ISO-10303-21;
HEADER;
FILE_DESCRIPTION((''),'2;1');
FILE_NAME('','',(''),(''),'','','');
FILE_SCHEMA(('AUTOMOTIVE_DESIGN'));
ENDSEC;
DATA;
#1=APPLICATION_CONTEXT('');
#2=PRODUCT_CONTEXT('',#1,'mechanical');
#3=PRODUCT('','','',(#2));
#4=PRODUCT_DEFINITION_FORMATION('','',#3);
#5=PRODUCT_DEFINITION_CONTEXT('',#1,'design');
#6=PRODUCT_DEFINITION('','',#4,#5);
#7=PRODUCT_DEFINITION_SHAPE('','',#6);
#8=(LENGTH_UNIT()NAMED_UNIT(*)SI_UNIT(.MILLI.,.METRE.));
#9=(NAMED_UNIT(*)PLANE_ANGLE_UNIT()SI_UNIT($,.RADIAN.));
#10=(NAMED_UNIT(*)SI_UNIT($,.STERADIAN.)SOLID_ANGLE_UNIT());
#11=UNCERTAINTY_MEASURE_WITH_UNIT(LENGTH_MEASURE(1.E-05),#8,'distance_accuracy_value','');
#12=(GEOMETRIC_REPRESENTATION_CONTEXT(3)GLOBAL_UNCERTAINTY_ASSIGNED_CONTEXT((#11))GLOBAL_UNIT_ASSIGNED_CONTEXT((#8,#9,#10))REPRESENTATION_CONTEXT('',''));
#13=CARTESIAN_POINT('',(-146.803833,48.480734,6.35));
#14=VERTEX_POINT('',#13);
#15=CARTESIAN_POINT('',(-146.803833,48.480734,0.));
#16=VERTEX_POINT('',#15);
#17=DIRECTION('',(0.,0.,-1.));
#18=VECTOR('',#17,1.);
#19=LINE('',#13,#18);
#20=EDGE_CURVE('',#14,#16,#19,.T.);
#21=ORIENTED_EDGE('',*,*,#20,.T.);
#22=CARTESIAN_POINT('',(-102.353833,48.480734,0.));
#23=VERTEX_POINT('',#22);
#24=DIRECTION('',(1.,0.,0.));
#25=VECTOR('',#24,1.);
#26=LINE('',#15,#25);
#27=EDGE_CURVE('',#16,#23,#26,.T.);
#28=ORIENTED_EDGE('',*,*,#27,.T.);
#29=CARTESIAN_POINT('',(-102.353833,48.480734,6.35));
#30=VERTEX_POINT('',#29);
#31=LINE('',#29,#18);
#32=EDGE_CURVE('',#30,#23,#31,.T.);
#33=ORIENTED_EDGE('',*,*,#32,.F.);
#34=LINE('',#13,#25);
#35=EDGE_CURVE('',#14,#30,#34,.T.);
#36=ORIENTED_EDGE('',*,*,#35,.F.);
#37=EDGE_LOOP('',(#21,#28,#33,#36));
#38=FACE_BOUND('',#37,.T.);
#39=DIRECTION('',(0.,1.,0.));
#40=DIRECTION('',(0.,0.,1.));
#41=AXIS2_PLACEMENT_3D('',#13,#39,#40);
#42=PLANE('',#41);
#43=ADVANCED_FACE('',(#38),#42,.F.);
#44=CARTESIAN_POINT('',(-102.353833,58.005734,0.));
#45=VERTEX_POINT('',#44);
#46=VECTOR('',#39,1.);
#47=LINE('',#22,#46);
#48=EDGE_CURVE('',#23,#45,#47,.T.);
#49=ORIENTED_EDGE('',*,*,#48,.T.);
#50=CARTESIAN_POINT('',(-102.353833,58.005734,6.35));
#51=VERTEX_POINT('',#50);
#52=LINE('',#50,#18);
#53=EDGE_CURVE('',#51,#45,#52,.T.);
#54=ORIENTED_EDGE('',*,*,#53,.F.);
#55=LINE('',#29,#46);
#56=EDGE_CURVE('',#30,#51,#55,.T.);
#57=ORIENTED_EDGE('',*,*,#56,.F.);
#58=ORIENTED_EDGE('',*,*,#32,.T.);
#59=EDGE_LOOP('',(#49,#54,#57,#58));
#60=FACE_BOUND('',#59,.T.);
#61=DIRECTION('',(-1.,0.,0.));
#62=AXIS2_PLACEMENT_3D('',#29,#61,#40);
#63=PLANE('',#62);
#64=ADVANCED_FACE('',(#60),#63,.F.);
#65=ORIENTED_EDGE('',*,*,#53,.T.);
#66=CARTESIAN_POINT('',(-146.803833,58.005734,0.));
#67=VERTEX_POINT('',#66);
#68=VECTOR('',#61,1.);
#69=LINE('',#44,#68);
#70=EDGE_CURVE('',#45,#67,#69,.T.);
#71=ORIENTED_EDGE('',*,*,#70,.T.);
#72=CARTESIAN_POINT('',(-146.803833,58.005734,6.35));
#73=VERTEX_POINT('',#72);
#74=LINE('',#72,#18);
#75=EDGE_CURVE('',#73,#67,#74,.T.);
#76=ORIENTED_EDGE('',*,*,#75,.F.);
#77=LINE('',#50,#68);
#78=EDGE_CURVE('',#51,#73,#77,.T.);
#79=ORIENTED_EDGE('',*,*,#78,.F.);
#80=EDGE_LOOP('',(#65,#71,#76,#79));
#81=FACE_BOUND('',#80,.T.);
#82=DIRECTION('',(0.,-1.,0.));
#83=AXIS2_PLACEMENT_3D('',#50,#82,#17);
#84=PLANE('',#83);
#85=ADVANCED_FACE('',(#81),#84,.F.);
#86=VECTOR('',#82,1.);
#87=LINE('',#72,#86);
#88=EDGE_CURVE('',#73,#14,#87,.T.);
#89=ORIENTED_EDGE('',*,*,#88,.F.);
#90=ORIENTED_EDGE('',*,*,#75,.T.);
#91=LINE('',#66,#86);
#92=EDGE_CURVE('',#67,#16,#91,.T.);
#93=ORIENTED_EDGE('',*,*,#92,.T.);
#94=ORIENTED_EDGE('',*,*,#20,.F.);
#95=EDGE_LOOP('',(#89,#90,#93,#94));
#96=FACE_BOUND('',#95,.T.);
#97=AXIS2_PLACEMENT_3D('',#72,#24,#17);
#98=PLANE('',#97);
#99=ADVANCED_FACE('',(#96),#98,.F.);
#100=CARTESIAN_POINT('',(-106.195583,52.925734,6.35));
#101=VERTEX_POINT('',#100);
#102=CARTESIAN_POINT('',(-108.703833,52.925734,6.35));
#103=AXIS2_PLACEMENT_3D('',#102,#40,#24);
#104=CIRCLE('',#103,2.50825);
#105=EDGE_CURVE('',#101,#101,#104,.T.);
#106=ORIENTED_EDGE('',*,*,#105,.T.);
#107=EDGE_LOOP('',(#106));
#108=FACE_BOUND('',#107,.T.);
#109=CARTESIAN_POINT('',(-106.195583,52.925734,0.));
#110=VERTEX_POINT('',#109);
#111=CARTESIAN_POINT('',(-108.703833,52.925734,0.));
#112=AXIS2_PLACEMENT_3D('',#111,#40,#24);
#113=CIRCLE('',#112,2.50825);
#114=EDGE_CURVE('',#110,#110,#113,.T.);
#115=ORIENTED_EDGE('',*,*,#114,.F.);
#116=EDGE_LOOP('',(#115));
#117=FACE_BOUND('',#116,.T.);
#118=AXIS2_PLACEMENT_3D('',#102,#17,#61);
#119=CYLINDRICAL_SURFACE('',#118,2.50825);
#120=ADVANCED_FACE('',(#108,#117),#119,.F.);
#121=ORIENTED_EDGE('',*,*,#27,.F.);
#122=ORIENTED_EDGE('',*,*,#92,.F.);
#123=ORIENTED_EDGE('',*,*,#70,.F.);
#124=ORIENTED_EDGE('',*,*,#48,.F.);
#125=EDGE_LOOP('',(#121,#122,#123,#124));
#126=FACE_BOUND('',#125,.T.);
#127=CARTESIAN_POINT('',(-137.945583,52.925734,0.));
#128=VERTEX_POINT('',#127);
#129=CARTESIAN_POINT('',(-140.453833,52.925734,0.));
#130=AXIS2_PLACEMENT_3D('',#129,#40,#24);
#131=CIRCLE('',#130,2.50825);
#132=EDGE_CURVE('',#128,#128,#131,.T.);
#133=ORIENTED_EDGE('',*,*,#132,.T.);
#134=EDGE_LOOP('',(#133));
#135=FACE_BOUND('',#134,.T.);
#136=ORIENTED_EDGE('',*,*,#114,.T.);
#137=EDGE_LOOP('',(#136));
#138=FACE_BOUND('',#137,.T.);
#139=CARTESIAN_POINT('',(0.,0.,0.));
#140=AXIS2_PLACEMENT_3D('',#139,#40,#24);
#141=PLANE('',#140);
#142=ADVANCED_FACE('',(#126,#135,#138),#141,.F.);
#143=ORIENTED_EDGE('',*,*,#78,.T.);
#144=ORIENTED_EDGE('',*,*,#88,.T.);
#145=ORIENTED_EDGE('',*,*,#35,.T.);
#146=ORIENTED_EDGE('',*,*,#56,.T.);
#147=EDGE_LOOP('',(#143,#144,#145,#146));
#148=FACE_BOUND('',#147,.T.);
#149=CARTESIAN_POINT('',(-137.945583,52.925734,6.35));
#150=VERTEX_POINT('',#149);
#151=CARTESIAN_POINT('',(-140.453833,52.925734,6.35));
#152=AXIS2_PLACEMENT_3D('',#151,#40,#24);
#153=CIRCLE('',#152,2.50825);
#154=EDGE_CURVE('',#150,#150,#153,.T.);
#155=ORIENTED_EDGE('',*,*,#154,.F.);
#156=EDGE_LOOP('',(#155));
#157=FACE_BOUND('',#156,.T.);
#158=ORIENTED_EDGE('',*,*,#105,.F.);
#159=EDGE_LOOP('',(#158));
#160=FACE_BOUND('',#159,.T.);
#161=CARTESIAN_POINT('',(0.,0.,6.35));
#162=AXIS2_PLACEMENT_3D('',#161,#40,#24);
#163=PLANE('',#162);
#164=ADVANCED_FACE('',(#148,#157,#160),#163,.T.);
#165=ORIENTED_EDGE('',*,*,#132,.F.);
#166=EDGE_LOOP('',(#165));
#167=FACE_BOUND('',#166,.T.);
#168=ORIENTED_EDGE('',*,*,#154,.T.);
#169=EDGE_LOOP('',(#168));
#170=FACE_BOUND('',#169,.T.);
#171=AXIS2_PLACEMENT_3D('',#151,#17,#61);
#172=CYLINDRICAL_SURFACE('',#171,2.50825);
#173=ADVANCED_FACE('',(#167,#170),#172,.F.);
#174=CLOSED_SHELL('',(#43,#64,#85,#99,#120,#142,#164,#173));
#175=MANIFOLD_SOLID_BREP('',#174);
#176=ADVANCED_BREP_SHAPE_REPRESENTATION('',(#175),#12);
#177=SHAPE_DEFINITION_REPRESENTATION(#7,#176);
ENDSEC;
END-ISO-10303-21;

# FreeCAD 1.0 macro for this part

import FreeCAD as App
import Part
import Sketcher
Q = App.Units.Quantity

doc = App.newDocument("Part")
body = doc.addObject("PartDesign::Body", "Body")

sketch1 = body.newObject("Sketcher::SketchObject", "Sketch")
sketch1.AttachmentSupport = (doc.getObject("XY_Plane"), [""])
sketch1.MapMode = "FlatFace"
sketch1.addGeometry([
    Part.LineSegment(App.Vector(-146.8, 58, 0), App.Vector(-146.8, 48.5, 0)),
    Part.LineSegment(App.Vector(-146.8, 48.5, 0), App.Vector(-102.4, 48.5, 0)),
    Part.LineSegment(App.Vector(-102.4, 48.5, 0), App.Vector(-102.4, 58, 0)),
    Part.LineSegment(App.Vector(-102.4, 58, 0), App.Vector(-146.8, 58, 0)),
    Part.Circle(App.Vector(-140.5, 52.9, 0), App.Vector(0, 0, 1), 2.5),
    Part.Circle(App.Vector(-108.7, 52.9, 0), App.Vector(0, 0, 1), 2.5),
], False)
sketch1.addConstraint([
    Sketcher.Constraint("Coincident", 0, 2, 1, 1),
    Sketcher.Constraint("Coincident", 1, 2, 2, 1),
    Sketcher.Constraint("Coincident", 2, 2, 3, 1),
    Sketcher.Constraint("Coincident", 3, 2, 0, 1),
    Sketcher.Constraint("Vertical", 0),
    Sketcher.Constraint("Horizontal", 1),
    Sketcher.Constraint("Vertical", 2),
    Sketcher.Constraint("Horizontal", 3),
    Sketcher.Constraint("Equal", 4, 5),
    Sketcher.Constraint("Horizontal", 4, 3, 5, 3),
    Sketcher.Constraint("Diameter", 4, Q("0.1975 in")),
    Sketcher.Constraint("DistanceX", 1, 1, 1, 2, Q("1.75 in")),
    Sketcher.Constraint("DistanceX", 0, 2, 5, 3, Q("1.5 in")),
    Sketcher.Constraint("DistanceX", 4, 3, 1, 2, Q("1.5 in")),
    Sketcher.Constraint("DistanceY", 5, 3, 2, 2, Q("0.2 in")),
    Sketcher.Constraint("DistanceY", 0, 2, 0, 1, Q("0.375 in")),
    Sketcher.Constraint("DistanceX", 4, 3, -1, 1, Q("140.453833 mm")),
    Sketcher.Constraint("DistanceY", -1, 1, 4, 3, Q("52.925734 mm")),
])
pad1 = body.newObject("PartDesign::Pad", "Pad")
pad1.Profile = sketch1
pad1.Length = Q("0.25 in")

doc.recompute()
